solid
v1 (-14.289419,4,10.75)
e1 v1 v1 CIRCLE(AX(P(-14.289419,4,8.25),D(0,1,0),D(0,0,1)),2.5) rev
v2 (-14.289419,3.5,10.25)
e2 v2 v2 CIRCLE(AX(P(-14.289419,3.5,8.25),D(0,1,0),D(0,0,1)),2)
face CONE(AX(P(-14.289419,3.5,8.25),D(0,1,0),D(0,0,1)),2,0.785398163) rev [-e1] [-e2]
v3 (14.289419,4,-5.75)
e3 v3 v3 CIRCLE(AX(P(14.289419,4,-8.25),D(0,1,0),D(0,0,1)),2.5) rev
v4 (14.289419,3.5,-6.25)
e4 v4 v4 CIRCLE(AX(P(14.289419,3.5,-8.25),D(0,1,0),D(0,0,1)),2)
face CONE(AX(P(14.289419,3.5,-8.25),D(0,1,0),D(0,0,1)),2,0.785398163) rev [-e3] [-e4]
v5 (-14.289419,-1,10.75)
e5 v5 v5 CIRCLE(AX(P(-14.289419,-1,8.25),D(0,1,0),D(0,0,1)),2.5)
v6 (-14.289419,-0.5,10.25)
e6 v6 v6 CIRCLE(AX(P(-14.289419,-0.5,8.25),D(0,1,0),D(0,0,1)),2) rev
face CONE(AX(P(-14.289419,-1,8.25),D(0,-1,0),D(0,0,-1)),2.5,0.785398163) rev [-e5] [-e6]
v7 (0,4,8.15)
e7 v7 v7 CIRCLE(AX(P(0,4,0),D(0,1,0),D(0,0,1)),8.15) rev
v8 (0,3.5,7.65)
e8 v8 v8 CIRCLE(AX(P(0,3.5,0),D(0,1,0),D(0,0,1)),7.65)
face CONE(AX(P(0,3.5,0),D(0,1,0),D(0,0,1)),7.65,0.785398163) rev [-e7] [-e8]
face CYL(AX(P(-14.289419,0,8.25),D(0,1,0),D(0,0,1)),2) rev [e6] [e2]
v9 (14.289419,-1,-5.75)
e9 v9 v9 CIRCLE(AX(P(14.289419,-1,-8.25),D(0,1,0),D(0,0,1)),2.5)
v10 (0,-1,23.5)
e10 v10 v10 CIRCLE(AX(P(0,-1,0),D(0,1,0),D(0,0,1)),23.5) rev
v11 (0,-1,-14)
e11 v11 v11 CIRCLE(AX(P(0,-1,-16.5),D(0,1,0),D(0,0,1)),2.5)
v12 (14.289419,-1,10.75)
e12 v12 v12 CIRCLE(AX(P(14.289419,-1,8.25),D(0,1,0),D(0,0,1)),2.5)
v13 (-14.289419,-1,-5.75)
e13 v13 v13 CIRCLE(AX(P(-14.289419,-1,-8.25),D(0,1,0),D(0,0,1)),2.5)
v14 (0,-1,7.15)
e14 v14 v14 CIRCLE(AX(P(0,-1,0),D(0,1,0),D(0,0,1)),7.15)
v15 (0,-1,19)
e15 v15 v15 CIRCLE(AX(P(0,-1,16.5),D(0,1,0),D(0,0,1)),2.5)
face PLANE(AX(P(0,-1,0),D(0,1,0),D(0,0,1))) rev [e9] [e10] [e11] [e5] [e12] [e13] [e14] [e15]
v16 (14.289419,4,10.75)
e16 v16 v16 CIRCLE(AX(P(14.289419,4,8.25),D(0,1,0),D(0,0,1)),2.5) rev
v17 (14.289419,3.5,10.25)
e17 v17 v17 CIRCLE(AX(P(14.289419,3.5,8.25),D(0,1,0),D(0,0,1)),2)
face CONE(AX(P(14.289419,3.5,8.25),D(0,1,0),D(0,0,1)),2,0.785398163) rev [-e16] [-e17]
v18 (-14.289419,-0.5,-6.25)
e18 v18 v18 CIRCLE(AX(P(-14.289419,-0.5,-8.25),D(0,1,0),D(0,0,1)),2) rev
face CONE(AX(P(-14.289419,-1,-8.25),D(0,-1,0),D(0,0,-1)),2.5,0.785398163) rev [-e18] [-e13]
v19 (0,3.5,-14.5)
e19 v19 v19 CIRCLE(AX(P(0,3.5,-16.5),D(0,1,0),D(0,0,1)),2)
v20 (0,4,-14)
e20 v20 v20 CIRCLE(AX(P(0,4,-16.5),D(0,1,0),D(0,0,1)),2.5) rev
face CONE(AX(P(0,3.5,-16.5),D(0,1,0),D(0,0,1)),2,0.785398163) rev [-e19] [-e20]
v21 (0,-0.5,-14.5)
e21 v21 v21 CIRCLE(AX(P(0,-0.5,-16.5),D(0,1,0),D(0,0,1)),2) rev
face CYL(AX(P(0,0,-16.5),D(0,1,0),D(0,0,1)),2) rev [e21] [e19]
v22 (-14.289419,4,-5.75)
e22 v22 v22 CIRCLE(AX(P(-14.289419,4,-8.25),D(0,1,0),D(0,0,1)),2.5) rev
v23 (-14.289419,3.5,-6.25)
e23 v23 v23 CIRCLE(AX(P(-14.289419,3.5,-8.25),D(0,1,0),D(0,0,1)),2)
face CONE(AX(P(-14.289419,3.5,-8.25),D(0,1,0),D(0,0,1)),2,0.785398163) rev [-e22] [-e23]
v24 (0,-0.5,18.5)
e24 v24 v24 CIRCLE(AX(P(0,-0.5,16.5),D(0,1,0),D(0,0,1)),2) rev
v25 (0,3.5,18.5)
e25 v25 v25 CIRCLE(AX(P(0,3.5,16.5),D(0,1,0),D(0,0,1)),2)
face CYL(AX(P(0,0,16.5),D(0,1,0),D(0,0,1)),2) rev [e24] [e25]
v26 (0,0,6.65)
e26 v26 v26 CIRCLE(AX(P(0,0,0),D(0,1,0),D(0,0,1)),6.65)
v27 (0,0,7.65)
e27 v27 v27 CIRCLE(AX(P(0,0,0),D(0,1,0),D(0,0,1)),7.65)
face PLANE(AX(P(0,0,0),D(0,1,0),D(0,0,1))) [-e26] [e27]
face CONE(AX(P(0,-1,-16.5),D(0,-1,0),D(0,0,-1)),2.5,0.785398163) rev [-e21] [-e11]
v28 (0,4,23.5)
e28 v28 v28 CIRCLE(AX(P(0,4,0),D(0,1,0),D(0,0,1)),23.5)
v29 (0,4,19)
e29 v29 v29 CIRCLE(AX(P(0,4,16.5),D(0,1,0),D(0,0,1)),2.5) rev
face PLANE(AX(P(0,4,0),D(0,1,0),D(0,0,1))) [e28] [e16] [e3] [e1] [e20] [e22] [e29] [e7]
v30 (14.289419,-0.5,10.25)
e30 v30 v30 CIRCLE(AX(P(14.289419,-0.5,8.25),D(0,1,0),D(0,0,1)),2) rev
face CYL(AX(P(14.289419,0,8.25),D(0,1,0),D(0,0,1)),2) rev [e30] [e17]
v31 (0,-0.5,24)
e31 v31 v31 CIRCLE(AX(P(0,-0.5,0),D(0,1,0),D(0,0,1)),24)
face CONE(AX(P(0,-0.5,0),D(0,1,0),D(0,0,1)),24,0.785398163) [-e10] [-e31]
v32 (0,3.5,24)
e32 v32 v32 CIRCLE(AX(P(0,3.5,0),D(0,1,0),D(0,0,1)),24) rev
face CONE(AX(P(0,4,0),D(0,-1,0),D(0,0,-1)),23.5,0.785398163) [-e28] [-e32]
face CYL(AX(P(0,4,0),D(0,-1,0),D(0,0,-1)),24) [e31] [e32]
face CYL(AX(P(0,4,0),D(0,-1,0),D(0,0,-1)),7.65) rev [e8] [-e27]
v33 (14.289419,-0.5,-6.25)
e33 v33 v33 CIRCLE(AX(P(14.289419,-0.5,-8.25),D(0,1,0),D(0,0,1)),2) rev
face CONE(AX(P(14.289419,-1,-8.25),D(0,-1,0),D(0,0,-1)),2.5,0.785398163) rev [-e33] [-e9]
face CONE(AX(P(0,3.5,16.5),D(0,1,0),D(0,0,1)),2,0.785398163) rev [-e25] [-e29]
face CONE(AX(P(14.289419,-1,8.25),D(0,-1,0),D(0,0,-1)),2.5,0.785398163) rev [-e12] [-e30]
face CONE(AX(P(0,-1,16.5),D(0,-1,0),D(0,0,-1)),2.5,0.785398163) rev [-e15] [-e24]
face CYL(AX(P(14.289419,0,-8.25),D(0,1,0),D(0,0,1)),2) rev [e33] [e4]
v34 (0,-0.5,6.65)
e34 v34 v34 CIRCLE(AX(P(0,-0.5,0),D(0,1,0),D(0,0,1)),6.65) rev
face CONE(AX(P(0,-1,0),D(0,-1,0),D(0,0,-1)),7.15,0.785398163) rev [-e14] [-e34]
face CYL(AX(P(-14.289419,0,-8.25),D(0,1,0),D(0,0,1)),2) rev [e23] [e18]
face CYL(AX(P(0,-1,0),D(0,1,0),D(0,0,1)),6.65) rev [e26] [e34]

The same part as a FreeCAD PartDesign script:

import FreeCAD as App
import Part
import Sketcher

V = App.Vector
Q = App.Units.Quantity


def edges_at(feature, points):
    """Names of the edges that pass closest to the given points."""
    edges = feature.Shape.Edges
    near = lambda p: min(range(len(edges)), key=lambda i: edges[i].distToShape(Part.Vertex(*p))[0])
    return sorted({f"Edge{near(p) + 1}" for p in points})

doc = App.newDocument("Part")
params = doc.addObject("Spreadsheet::Sheet", "Params")
for row, (alias, value) in enumerate([
    ("sketch1_diameter", "48 mm"),
    ("sketch1_diameter2", "15.3 mm"),
    ("pad1_length", "4 mm"),
    ("sketch2_diameter", "4 mm"),
    ("sketch3_diameter", "48 mm"),
    ("sketch3_diameter2", "4 mm"),
    ("sketch3_diameter3", "13.3 mm"),
    ("pad2_length", "1 mm"),
    ("chamfer_size", "0.5 mm"),
], start=1):
    params.set(f"A{row}", alias)
    params.set(f"B{row}", "=" + value)
    params.setAlias(f"B{row}", alias)

body = doc.addObject("PartDesign::Body", "Body")

sketch1 = body.newObject("Sketcher::SketchObject", "Sketch")
sketch1.AttachmentSupport = (doc.getObject("XZ_Plane"), [""])
sketch1.MapMode = "FlatFace"
sketch1.addGeometry([
    Part.Circle(V(0, 0, 0), V(0, 0, 1), 24),
    Part.Circle(V(0, 0, 0), V(0, 0, 1), 8),
], False)
sketch1.addConstraint([
    Sketcher.Constraint("Coincident", 0, 3, -1, 1),
    Sketcher.Constraint("Coincident", 1, 3, -1, 1),
    Sketcher.Constraint("Diameter", 0, Q("48 mm")),
    Sketcher.Constraint("Diameter", 1, Q("15.3 mm")),
])
sketch1.setExpression("Constraints[2]", "Params.sketch1_diameter")
sketch1.setExpression("Constraints[3]", "Params.sketch1_diameter2")
pad1 = body.newObject("PartDesign::Pad", "Pad")
pad1.Profile = sketch1
pad1.setExpression("Length", "Params.pad1_length")
pad1.Reversed = True

sketch2 = body.newObject("Sketcher::SketchObject", "Sketch001")
sketch2.AttachmentSupport = (doc.getObject("XZ_Plane"), [""])
sketch2.MapMode = "FlatFace"
sketch2.AttachmentOffset = App.Placement(V(0, 0, -4), App.Rotation())
sketch2.addGeometry(Part.Circle(V(0, -16.5, 0), V(0, 0, 1), 2), False)
sketch2.addConstraint([
    Sketcher.Constraint("PointOnObject", 0, 3, -2),
    Sketcher.Constraint("Diameter", 0, Q("4 mm")),
    Sketcher.Constraint("DistanceY", 0, 3, -1, 1, Q("16.5 mm")),
])
sketch2.setExpression("Constraints[1]", "Params.sketch2_diameter")
pocket1 = body.newObject("PartDesign::Pocket", "Pocket")
pocket1.Profile = sketch2
pocket1.Type = "ThroughAll"
pocket1.Reversed = True
doc.recompute()

polarpattern = body.newObject("PartDesign::PolarPattern", "PolarPattern")
polarpattern.Originals = [pocket1]
polarpattern.Axis = (doc.getObject("Y_Axis"), [""])
polarpattern.Angle = 360
polarpattern.Occurrences = 6
body.Tip = polarpattern

sketch3 = body.newObject("Sketcher::SketchObject", "Sketch002")
sketch3.AttachmentSupport = (doc.getObject("XZ_Plane"), [""])
sketch3.MapMode = "FlatFace"
sketch3.addGeometry([
    Part.Circle(V(0, 0, 0), V(0, 0, 1), 24),
    Part.Circle(V(0, 16.5, 0), V(0, 0, 1), 2),
    Part.Circle(V(-14.3, 8.2, 0), V(0, 0, 1), 2),
    Part.Circle(V(14.3, 8.2, 0), V(0, 0, 1), 2),
    Part.Circle(V(-14.3, -8.2, 0), V(0, 0, 1), 2),
    Part.Circle(V(0, -16.5, 0), V(0, 0, 1), 2),
    Part.Circle(V(0, 0, 0), V(0, 0, 1), 6.7),
    Part.Circle(V(14.3, -8.2, 0), V(0, 0, 1), 2),
], False)
sketch3.addConstraint([
    Sketcher.Constraint("Coincident", 0, 3, -1, 1),
    Sketcher.Constraint("Coincident", 6, 3, -1, 1),
    Sketcher.Constraint("Equal", 1, 2),
    Sketcher.Constraint("Equal", 2, 3),
    Sketcher.Constraint("Equal", 3, 4),
    Sketcher.Constraint("Equal", 4, 5),
    Sketcher.Constraint("Equal", 5, 7),
    Sketcher.Constraint("Symmetric", 3, 3, 4, 3, -1, 1),
    Sketcher.Constraint("Symmetric", 1, 3, 5, 3, -1, 1),
    Sketcher.Constraint("Symmetric", 2, 3, 7, 3, -1, 1),
    Sketcher.Constraint("Symmetric", 2, 3, 3, 3, -2),
    Sketcher.Constraint("PointOnObject", 1, 3, -2),
    Sketcher.Constraint("Diameter", 0, Q("48 mm")),
    Sketcher.Constraint("Diameter", 1, Q("4 mm")),
    Sketcher.Constraint("Diameter", 6, Q("13.3 mm")),
    Sketcher.Constraint("DistanceY", 5, 3, 1, 3, Q("33 mm")),
    Sketcher.Constraint("DistanceY", 4, 3, 2, 3, Q("16.5 mm")),
    Sketcher.Constraint("DistanceX", 2, 3, -1, 1, Q("14.289419 mm")),
])
sketch3.setExpression("Constraints[12]", "Params.sketch3_diameter")
sketch3.setExpression("Constraints[13]", "Params.sketch3_diameter2")
sketch3.setExpression("Constraints[14]", "Params.sketch3_diameter3")
pad2 = body.newObject("PartDesign::Pad", "Pad001")
pad2.Profile = sketch3
pad2.setExpression("Length", "Params.pad2_length")
doc.recompute()

chamfer = body.newObject("PartDesign::Chamfer", "Chamfer")
chamfer.Base = (pad2, edges_at(pad2, [
    (-2, 4, -16.5),
    (13.289, 4, -9.982),
    (15.289, 4, 6.518),
    (2, 4, 16.5),
    (-13.289, 4, 9.982),
    (-15.289, 4, -6.518),
    (-24, -1, 0),
    (-16.289, -1, -8.25),
    (-2, -1, -16.5),
    (12.289, -1, -8.25),
    (12.289, -1, 8.25),
    (-2, -1, 16.5),
    (-6.65, -1, 0),
    (-16.289, -1, 8.25),
    (-24, 4, 0),
    (-7.65, 4, 0),
]))
chamfer.setExpression("Size", "Params.chamfer_size")

doc.recompute()
